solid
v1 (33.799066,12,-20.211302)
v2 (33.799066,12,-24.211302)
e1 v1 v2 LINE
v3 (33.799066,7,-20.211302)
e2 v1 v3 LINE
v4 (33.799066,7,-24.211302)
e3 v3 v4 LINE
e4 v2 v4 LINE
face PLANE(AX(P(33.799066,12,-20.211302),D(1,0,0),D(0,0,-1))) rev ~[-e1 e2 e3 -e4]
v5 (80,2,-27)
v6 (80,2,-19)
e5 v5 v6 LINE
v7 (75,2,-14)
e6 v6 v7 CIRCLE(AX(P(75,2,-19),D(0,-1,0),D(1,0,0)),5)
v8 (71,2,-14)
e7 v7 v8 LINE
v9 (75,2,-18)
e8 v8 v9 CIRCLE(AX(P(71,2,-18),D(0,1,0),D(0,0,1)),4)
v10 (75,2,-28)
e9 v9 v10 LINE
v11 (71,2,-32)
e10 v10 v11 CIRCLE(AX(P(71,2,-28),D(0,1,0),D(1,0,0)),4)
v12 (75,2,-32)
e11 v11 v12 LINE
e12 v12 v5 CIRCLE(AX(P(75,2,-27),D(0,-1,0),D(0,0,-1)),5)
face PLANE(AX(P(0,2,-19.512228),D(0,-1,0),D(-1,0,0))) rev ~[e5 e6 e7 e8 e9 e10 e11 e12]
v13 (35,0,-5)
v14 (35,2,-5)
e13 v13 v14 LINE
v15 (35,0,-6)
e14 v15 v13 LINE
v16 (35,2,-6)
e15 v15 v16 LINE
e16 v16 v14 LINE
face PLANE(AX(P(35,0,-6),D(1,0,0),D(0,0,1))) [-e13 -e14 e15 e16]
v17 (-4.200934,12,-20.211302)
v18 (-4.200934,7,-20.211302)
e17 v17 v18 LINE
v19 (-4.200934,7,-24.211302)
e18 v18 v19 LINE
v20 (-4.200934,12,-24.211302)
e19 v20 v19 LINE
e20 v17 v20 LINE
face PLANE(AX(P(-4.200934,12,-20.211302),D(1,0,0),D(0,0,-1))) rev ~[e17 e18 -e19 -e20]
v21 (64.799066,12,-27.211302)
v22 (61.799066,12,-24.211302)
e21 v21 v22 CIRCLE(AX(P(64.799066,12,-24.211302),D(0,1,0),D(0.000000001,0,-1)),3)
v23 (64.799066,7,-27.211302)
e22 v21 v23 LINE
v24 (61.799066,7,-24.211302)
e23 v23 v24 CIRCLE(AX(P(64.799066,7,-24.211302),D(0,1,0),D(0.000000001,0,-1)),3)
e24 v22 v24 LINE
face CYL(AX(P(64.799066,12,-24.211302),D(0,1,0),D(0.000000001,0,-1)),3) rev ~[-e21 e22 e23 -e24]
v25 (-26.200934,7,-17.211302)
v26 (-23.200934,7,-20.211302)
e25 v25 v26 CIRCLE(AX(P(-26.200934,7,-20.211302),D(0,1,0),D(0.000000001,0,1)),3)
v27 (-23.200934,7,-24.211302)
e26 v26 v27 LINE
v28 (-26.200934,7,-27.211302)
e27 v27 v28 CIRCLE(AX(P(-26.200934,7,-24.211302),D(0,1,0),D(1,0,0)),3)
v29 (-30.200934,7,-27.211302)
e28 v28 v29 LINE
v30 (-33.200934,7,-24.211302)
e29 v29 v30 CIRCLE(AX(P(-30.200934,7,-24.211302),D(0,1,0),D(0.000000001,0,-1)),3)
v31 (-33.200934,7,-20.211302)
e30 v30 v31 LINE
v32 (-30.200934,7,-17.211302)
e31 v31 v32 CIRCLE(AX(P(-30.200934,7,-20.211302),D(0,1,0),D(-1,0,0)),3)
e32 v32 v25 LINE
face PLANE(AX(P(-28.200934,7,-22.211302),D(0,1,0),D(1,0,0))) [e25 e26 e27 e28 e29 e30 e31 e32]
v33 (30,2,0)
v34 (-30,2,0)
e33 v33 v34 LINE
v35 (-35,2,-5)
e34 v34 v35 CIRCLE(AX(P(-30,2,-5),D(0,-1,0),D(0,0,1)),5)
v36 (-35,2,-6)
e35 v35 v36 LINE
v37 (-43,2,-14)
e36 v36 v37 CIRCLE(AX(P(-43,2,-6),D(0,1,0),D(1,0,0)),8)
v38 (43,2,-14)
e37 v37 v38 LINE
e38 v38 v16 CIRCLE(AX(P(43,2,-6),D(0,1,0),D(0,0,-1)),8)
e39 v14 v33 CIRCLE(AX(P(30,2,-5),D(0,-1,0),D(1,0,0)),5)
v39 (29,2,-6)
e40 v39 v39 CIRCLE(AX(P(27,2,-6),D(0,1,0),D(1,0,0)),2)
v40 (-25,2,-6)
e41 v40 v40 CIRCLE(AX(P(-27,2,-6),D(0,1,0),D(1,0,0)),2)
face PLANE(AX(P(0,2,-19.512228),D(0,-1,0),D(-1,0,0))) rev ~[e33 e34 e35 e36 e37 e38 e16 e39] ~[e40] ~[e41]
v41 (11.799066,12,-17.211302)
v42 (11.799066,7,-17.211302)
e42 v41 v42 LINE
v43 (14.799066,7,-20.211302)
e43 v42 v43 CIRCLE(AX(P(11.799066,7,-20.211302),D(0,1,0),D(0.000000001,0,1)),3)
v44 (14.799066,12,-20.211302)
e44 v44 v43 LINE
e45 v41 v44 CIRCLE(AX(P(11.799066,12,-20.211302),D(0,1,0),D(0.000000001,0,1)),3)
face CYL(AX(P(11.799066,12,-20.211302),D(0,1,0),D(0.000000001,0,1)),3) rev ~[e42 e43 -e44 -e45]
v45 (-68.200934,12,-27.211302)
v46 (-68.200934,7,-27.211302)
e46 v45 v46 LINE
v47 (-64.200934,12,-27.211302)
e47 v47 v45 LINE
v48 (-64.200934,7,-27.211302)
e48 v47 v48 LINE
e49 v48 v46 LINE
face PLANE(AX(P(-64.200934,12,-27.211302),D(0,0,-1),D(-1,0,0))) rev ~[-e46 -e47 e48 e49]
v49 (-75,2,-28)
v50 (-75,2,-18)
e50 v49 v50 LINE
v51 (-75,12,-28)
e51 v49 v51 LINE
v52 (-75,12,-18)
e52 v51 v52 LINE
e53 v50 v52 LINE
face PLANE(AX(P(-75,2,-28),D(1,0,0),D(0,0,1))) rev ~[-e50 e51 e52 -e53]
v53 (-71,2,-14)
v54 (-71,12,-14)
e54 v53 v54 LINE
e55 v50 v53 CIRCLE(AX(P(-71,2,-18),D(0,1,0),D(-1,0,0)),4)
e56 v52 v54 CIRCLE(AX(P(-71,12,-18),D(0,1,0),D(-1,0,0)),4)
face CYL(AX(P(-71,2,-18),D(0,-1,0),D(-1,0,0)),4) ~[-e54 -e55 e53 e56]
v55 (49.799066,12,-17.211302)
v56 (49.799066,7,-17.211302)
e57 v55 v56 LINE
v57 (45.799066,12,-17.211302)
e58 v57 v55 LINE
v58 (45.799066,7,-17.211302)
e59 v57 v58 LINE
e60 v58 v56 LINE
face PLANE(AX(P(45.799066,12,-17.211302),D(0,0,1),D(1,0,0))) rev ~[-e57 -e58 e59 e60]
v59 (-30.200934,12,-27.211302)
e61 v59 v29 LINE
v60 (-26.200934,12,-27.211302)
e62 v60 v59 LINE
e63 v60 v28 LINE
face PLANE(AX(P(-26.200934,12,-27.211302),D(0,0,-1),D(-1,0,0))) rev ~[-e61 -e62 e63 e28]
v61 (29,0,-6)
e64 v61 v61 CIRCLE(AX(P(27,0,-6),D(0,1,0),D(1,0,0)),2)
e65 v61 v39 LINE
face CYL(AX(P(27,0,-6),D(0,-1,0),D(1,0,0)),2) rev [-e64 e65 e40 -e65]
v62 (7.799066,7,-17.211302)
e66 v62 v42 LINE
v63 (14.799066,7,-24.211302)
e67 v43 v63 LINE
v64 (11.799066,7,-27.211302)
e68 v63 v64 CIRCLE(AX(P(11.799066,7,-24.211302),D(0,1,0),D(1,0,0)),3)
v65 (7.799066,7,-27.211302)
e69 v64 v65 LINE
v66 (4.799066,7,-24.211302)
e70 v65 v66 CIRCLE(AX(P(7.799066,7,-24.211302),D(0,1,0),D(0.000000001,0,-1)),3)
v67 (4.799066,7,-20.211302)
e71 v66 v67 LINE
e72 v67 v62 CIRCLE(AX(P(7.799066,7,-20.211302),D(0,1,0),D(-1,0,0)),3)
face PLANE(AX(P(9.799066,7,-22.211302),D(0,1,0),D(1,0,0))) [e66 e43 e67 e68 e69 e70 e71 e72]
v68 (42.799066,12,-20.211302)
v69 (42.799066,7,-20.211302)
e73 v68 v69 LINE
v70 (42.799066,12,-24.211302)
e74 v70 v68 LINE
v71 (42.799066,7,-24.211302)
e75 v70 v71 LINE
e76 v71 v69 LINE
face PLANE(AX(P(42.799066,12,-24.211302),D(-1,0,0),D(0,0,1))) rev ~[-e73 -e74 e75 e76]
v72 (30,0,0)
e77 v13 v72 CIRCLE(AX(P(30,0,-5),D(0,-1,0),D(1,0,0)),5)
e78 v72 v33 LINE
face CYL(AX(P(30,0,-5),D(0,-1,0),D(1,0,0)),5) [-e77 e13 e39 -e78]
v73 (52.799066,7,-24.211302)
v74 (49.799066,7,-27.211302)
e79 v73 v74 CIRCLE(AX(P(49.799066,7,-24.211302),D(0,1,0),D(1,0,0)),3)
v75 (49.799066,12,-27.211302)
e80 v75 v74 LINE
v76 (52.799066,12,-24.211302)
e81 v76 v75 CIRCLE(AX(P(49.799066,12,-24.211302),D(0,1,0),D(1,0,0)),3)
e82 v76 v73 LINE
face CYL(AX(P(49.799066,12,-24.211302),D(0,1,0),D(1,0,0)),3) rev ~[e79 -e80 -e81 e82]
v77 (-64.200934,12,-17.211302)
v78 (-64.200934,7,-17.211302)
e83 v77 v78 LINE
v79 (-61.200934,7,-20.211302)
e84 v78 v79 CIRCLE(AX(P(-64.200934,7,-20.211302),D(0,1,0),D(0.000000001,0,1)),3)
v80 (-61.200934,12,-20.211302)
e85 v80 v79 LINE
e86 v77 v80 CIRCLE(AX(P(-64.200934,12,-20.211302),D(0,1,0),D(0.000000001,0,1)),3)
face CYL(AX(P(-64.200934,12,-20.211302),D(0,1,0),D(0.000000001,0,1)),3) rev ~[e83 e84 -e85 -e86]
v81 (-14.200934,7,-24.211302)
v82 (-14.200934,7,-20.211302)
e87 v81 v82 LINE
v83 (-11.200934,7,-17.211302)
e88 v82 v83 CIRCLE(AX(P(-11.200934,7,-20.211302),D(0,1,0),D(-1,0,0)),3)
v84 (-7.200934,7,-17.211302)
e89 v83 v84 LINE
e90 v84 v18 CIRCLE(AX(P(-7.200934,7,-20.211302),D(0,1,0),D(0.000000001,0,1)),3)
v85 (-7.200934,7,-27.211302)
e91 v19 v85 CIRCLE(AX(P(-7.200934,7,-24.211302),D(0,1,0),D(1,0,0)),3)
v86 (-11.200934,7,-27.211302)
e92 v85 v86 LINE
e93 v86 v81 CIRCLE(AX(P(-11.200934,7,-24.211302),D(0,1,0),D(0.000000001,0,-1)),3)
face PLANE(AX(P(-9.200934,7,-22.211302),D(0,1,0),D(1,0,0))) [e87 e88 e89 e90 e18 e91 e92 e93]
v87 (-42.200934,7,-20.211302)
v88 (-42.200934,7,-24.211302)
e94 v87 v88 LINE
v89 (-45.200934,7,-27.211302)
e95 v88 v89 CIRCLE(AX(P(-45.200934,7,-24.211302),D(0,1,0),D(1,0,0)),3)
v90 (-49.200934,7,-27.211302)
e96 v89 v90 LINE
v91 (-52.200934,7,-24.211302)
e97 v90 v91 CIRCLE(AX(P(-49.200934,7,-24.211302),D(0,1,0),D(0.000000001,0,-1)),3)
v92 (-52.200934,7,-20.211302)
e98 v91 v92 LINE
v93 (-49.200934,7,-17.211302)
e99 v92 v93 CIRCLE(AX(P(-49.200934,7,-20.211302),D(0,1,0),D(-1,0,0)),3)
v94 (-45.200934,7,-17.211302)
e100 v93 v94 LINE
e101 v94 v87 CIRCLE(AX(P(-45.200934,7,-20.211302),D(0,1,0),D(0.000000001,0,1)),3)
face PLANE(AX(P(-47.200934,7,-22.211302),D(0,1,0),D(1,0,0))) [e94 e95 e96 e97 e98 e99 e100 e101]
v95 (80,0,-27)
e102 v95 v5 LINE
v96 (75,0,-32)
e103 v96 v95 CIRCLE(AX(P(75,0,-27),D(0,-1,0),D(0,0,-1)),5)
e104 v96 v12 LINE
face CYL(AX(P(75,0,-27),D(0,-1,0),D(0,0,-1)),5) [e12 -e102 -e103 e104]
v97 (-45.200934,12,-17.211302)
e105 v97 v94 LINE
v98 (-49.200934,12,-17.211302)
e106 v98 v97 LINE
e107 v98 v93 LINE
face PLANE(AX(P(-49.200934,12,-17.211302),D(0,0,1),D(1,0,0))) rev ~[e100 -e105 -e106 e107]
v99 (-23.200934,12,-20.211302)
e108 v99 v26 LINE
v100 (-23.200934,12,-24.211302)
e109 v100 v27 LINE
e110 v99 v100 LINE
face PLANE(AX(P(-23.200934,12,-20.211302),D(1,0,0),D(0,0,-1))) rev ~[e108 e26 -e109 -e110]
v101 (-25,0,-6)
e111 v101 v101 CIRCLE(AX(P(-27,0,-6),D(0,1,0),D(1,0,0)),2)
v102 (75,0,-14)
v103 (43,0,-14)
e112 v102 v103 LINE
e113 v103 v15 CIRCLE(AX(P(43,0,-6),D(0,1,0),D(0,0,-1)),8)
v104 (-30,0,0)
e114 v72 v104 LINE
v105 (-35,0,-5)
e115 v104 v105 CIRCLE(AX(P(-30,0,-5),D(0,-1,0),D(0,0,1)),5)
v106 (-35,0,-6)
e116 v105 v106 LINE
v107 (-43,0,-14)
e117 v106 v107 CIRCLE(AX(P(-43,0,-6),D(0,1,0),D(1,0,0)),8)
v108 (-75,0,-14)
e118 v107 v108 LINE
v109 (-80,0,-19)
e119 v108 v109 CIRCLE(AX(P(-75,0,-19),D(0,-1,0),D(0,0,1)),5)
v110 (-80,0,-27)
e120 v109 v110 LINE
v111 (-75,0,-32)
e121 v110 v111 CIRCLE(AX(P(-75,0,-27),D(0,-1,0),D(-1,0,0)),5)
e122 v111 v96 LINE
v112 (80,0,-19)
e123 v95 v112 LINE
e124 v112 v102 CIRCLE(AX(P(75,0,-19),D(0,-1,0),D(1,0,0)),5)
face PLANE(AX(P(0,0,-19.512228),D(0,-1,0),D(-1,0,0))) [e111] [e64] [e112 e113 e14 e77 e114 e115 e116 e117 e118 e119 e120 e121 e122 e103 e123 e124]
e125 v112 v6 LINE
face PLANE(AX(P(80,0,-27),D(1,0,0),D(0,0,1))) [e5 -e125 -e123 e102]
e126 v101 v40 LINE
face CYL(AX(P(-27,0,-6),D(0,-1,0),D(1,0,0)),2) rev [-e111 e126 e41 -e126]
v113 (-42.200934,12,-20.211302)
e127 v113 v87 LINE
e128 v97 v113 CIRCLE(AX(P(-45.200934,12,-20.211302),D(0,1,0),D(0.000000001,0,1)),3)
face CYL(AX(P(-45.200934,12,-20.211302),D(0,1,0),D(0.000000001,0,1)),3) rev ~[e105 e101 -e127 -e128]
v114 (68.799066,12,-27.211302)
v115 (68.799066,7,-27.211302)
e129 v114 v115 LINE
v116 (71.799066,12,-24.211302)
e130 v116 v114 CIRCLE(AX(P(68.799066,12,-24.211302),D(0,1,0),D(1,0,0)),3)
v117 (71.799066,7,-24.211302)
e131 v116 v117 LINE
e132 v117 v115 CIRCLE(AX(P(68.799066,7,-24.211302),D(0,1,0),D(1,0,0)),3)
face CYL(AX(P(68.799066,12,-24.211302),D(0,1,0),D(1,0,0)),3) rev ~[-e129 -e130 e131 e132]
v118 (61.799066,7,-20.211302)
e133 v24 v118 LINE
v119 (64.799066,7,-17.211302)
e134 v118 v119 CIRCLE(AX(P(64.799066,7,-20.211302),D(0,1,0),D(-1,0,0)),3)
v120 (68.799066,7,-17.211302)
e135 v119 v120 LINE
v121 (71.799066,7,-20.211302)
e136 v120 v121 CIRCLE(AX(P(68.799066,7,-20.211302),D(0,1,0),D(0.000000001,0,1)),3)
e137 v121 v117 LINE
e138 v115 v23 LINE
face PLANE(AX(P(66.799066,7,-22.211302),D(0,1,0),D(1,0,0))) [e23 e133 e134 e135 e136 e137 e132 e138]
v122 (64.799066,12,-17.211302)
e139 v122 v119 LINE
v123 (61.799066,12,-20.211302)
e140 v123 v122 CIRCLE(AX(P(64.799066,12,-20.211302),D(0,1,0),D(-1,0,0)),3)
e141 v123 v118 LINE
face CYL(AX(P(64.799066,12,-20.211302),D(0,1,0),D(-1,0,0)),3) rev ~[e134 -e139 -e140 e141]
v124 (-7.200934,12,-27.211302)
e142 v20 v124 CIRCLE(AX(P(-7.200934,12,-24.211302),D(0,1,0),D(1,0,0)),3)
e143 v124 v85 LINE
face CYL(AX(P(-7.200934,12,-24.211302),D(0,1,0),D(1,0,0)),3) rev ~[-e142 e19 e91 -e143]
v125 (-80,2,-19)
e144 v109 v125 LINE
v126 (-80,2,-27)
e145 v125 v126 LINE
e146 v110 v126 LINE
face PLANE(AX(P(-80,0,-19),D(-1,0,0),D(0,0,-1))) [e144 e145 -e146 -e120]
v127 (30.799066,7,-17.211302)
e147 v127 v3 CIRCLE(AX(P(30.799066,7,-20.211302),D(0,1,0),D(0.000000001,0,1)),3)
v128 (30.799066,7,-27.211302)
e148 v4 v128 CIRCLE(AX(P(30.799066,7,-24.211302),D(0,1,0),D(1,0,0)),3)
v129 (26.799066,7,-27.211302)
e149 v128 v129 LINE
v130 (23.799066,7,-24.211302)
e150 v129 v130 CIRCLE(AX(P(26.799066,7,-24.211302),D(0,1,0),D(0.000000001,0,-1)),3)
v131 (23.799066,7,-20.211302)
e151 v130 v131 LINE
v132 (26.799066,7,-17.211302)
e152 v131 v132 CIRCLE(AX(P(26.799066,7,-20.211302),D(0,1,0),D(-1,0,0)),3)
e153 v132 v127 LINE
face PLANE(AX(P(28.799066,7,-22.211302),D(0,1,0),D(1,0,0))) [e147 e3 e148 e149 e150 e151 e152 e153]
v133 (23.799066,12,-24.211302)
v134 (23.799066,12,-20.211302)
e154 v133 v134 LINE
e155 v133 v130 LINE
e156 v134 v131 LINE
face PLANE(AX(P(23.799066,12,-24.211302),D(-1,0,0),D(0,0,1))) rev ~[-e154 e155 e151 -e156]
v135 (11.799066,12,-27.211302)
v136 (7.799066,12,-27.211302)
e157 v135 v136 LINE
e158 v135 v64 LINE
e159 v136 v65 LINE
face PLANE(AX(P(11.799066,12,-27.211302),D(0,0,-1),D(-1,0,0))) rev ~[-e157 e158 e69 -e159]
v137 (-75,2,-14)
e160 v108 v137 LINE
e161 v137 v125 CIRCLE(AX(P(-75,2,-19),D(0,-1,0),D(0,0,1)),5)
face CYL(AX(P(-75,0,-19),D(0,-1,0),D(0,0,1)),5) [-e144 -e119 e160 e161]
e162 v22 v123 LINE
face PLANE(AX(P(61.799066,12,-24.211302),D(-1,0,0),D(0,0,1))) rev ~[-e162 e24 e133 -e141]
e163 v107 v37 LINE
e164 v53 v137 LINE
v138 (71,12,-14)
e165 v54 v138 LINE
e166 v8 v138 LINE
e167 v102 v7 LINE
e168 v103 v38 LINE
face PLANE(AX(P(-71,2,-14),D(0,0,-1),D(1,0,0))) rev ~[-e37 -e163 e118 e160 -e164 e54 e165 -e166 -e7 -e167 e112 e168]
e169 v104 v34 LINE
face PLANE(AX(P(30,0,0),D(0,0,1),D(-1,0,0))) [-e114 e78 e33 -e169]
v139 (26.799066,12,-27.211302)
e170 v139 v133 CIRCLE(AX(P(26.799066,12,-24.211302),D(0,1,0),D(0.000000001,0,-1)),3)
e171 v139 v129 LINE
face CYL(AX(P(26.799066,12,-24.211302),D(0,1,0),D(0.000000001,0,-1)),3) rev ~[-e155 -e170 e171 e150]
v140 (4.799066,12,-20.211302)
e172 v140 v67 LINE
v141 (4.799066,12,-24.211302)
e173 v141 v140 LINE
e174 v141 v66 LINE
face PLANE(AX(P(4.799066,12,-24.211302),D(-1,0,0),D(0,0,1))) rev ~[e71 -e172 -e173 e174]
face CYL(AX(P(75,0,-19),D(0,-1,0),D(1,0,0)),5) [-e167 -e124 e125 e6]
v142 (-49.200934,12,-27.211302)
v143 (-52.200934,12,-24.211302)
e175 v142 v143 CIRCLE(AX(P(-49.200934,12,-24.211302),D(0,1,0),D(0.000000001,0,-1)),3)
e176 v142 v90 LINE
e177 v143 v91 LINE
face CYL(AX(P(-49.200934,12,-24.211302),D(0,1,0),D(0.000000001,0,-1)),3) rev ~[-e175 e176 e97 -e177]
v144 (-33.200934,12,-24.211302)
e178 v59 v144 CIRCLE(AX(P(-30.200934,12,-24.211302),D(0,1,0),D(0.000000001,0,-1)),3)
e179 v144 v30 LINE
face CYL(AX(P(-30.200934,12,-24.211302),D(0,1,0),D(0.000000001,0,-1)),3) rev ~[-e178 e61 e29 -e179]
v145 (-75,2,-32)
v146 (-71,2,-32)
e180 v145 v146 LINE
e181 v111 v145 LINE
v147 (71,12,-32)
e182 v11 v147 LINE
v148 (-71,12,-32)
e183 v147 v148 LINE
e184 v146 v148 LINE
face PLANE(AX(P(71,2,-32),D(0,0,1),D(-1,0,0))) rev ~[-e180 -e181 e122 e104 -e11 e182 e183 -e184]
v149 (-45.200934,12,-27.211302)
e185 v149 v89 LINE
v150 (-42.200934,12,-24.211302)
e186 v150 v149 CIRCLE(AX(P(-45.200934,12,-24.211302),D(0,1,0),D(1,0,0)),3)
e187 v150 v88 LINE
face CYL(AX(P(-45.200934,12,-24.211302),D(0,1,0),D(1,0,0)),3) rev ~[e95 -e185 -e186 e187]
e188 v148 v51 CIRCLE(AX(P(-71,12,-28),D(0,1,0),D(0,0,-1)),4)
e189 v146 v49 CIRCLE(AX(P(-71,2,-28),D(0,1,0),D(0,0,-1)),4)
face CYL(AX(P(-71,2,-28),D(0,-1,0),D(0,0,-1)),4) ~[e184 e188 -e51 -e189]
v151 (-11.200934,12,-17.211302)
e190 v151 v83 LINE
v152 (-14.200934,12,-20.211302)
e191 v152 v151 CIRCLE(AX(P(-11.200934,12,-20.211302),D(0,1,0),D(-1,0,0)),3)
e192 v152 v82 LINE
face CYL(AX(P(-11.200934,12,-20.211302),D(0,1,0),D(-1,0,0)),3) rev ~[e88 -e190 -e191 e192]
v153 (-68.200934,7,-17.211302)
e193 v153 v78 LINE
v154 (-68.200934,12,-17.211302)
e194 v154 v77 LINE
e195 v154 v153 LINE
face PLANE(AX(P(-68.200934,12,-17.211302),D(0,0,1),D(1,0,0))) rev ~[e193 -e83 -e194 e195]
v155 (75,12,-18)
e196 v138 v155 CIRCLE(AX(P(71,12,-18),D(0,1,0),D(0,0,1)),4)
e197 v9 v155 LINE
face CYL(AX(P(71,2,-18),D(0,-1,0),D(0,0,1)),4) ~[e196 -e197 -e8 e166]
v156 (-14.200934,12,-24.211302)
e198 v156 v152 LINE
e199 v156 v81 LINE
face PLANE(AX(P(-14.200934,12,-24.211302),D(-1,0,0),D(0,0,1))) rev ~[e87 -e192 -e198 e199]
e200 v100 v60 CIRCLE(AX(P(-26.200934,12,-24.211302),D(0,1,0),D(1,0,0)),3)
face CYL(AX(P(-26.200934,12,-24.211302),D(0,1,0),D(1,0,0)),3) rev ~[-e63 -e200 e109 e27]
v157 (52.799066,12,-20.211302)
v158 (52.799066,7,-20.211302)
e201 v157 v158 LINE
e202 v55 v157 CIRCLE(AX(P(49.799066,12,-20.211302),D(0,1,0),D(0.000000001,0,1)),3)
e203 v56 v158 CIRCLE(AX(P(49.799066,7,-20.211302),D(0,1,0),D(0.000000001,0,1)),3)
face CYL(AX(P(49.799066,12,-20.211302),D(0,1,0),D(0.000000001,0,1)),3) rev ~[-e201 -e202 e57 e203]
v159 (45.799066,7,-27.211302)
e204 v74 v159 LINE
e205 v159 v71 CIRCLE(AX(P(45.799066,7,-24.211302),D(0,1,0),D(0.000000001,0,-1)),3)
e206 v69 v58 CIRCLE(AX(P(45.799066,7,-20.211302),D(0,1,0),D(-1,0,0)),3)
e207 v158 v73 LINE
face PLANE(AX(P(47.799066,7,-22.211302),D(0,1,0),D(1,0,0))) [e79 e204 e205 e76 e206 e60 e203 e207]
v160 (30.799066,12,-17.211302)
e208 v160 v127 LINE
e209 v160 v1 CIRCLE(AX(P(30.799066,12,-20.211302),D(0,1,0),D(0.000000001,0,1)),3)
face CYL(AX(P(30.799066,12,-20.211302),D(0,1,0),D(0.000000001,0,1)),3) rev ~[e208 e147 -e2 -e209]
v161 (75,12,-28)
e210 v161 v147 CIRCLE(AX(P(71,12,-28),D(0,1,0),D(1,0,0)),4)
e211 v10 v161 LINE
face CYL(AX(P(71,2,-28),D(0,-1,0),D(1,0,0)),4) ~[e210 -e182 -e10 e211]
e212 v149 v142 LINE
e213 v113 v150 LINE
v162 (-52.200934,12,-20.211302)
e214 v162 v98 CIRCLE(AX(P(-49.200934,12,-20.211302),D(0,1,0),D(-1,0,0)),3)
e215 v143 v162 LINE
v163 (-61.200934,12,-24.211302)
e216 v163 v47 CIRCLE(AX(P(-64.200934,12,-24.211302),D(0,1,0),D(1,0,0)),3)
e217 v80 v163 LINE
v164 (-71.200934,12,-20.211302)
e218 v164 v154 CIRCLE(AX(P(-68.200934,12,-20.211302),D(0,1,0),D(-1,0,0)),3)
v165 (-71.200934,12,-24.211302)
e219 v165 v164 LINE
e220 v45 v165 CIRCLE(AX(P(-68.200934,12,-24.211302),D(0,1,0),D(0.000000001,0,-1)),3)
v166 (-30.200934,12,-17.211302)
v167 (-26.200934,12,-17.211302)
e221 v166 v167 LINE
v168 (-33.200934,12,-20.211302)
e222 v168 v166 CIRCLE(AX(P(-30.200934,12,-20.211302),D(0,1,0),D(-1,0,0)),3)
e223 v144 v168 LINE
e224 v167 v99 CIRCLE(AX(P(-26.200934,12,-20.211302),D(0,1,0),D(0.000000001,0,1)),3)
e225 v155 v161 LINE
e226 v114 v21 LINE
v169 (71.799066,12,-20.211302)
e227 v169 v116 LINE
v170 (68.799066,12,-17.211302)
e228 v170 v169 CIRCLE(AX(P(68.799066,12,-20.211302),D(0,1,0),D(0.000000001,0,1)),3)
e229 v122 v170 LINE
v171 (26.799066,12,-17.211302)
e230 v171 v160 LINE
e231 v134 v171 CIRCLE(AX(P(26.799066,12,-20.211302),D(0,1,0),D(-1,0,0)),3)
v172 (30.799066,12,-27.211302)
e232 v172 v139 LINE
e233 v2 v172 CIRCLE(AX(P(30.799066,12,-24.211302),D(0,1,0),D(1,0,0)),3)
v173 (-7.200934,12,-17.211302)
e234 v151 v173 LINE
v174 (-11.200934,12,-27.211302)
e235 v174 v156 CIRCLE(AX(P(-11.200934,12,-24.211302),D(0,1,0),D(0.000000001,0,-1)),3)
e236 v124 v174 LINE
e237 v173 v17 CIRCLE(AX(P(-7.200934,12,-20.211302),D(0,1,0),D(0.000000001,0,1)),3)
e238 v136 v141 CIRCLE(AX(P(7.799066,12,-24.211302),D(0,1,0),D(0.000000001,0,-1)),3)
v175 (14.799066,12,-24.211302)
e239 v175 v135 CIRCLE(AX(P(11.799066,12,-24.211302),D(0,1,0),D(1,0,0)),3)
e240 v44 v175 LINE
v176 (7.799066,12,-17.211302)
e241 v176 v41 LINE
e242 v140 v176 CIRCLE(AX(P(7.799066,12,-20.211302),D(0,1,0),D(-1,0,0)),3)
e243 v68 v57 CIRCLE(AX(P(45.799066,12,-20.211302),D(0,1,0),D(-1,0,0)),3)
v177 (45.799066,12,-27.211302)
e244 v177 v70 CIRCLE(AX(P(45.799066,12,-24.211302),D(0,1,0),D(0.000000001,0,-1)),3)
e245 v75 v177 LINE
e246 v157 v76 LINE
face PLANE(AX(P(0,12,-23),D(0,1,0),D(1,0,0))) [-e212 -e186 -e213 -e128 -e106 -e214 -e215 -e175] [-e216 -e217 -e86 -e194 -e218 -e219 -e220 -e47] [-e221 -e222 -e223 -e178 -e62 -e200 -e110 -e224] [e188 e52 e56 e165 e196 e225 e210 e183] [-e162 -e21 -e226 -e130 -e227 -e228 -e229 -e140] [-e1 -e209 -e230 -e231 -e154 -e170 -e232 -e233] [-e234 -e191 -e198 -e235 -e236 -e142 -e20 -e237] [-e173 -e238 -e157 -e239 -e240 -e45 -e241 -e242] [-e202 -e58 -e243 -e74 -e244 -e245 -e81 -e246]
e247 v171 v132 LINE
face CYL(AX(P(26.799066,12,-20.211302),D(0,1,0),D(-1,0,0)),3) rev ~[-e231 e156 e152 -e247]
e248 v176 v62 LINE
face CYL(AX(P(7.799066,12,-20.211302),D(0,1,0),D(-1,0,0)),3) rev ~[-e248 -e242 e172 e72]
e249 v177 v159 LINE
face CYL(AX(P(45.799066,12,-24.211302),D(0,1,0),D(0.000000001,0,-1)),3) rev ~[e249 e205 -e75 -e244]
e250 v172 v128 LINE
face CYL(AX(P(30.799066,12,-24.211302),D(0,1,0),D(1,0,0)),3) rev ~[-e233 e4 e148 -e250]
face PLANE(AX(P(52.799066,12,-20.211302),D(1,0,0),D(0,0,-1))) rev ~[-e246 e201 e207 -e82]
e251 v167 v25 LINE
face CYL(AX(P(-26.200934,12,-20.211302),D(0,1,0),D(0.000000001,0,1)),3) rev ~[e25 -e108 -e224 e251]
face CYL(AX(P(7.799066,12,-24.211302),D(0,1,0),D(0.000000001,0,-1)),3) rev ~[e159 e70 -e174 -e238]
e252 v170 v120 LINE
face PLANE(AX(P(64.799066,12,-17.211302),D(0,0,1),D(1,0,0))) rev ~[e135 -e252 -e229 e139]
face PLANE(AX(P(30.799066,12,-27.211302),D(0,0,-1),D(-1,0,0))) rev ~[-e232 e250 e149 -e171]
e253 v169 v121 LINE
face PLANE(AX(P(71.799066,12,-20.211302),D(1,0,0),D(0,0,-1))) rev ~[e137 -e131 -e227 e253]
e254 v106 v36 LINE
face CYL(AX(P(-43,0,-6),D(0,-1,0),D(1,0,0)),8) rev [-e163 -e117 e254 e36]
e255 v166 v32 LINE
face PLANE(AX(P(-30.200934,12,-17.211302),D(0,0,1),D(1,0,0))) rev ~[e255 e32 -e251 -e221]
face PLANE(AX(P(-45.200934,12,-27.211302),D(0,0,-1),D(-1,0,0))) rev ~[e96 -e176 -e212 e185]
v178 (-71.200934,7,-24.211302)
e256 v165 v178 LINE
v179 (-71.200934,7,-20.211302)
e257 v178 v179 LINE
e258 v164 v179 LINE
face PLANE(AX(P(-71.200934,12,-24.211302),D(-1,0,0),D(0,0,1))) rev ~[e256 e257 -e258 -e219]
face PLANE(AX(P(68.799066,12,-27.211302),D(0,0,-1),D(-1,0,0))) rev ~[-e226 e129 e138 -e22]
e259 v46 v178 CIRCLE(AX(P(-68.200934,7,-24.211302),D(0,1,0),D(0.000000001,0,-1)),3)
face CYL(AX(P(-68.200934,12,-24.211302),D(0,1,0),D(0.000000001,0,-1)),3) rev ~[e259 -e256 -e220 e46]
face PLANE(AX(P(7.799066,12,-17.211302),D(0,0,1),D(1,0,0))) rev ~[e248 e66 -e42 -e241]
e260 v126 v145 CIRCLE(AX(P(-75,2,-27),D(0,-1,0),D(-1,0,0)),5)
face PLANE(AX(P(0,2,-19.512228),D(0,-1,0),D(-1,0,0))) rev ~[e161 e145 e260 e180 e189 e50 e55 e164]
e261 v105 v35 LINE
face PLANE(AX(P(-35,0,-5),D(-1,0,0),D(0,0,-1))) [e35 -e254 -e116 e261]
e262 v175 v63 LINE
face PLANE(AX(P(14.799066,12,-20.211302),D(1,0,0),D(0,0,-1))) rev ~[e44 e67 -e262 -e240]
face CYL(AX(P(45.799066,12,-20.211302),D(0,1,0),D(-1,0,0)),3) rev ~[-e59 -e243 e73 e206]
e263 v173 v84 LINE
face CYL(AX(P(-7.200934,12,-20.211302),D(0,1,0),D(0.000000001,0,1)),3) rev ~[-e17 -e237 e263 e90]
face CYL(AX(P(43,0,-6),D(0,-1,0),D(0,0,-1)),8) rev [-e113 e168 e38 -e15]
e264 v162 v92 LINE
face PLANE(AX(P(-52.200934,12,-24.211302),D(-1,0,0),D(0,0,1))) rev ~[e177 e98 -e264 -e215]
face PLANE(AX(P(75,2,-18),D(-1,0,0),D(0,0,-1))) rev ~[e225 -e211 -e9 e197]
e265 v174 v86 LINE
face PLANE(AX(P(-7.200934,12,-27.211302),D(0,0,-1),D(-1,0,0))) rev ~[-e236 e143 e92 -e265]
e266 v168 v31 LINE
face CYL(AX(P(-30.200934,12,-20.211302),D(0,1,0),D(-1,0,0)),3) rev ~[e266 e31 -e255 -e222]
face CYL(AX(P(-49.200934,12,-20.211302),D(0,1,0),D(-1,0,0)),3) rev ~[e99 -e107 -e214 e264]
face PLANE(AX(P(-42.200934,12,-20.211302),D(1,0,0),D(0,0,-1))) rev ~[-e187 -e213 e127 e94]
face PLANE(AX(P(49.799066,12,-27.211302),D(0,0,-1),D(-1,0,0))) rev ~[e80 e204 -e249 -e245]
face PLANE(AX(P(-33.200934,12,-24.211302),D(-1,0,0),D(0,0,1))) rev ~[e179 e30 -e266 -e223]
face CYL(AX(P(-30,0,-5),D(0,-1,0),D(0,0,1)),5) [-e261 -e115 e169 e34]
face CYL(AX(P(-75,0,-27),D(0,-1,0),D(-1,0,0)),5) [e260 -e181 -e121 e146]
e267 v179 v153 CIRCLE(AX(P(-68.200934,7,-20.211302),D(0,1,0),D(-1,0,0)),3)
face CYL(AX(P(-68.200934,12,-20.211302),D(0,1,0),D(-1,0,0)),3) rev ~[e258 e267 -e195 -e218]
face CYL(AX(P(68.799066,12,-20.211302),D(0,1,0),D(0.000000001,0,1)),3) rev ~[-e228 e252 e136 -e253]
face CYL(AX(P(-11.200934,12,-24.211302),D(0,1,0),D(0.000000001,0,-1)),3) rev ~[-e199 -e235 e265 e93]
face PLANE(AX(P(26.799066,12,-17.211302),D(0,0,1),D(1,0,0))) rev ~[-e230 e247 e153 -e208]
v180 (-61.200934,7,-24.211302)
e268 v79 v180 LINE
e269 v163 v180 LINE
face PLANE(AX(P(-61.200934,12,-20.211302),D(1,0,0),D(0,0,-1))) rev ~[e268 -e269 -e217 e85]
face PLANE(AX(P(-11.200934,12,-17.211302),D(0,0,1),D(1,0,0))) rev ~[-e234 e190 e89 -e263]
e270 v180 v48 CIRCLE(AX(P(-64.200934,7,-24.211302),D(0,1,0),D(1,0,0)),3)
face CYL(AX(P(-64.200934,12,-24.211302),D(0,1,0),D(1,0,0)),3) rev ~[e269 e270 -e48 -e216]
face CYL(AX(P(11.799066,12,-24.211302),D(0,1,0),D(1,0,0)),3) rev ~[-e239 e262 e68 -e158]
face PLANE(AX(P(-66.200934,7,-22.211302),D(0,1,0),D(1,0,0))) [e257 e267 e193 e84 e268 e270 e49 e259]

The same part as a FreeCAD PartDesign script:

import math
import FreeCAD as App
import Part
import Sketcher
from FreeCAD import Vector
Q = App.Units.Quantity

doc = App.newDocument("Part")
params = doc.addObject("Spreadsheet::Sheet", "Params")
for row, (alias, value) in enumerate([
    ("sketch1_diameter", "4 mm"),
    ("sketch1_radius", "5 mm"),
    ("sketch1_radius2", "8 mm"),
    ("sketch1_width", "150 mm"),
    ("sketch1_width2", "32 mm"),
    ("pad1_length", "2 mm"),
    ("sketch2_radius", "4 mm"),
    ("sketch2_width", "142 mm"),
    ("sketch2_height", "10 mm"),
    ("pad2_length", "10 mm"),
    ("sketch3_radius", "3 mm"),
    ("sketch3_width", "4 mm"),
    ("pocket1_length", "5 mm"),
], start=1):
    params.set(f"A{row}", alias)
    params.set(f"B{row}", "=" + value)
    params.setAlias(f"B{row}", alias)

body = doc.addObject("PartDesign::Body", "Body")

sketch1 = body.newObject("Sketcher::SketchObject", "Sketch")
sketch1.AttachmentSupport = (doc.getObject("XZ_Plane"), [""])
sketch1.MapMode = "FlatFace"
sketch1.addGeometry([
    Part.LineSegment(Vector(75, -32, 0), Vector(-75, -32, 0)),
    Part.ArcOfCircle(Part.Circle(Vector(-75, -27, 0), Vector(0, 0, 1), 5), math.radians(180), math.radians(270)),
    Part.LineSegment(Vector(-80, -27, 0), Vector(-80, -19, 0)),
    Part.ArcOfCircle(Part.Circle(Vector(-75, -19, 0), Vector(0, 0, 1), 5), math.radians(90), math.radians(180)),
    Part.LineSegment(Vector(-75, -14, 0), Vector(-43, -14, 0)),
    Part.ArcOfCircle(Part.Circle(Vector(-43, -6, 0), Vector(0, 0, 1), 8), math.radians(-90), math.radians(0)),
    Part.LineSegment(Vector(-35, -6, 0), Vector(-35, -5, 0)),
    Part.ArcOfCircle(Part.Circle(Vector(-30, -5, 0), Vector(0, 0, 1), 5), math.radians(90), math.radians(180)),
    Part.LineSegment(Vector(-30, 0, 0), Vector(30, 0, 0)),
    Part.ArcOfCircle(Part.Circle(Vector(30, -5, 0), Vector(0, 0, 1), 5), math.radians(0), math.radians(90)),
    Part.LineSegment(Vector(35, -5, 0), Vector(35, -6, 0)),
    Part.ArcOfCircle(Part.Circle(Vector(43, -6, 0), Vector(0, 0, 1), 8), math.radians(-180), math.radians(-90)),
    Part.LineSegment(Vector(43, -14, 0), Vector(75, -14, 0)),
    Part.ArcOfCircle(Part.Circle(Vector(75, -19, 0), Vector(0, 0, 1), 5), math.radians(0), math.radians(90)),
    Part.LineSegment(Vector(80, -19, 0), Vector(80, -27, 0)),
    Part.ArcOfCircle(Part.Circle(Vector(75, -27, 0), Vector(0, 0, 1), 5), math.radians(-90), math.radians(0)),
    Part.Circle(Vector(27, -6, 0), Vector(0, 0, 1), 2),
    Part.Circle(Vector(-27, -6, 0), Vector(0, 0, 1), 2),
], False)
sketch1.addConstraint([
    Sketcher.Constraint("Tangent", 0, 2, 1, 2),
    Sketcher.Constraint("Tangent", 1, 1, 2, 1),
    Sketcher.Constraint("Tangent", 2, 2, 3, 2),
    Sketcher.Constraint("Tangent", 3, 1, 4, 1),
    Sketcher.Constraint("Tangent", 4, 2, 5, 1),
    Sketcher.Constraint("Tangent", 5, 2, 6, 1),
    Sketcher.Constraint("Tangent", 6, 2, 7, 2),
    Sketcher.Constraint("Tangent", 7, 1, 8, 1),
    Sketcher.Constraint("Tangent", 8, 2, 9, 2),
    Sketcher.Constraint("Tangent", 9, 1, 10, 1),
    Sketcher.Constraint("Tangent", 10, 2, 11, 1),
    Sketcher.Constraint("Tangent", 11, 2, 12, 1),
    Sketcher.Constraint("Tangent", 12, 2, 13, 2),
    Sketcher.Constraint("Tangent", 13, 1, 14, 1),
    Sketcher.Constraint("Tangent", 14, 2, 15, 2),
    Sketcher.Constraint("Tangent", 15, 1, 0, 1),
    Sketcher.Constraint("Horizontal", 0),
    Sketcher.Constraint("Vertical", 2),
    Sketcher.Constraint("Horizontal", 4),
    Sketcher.Constraint("Vertical", 6),
    Sketcher.Constraint("Horizontal", 8),
    Sketcher.Constraint("Vertical", 10),
    Sketcher.Constraint("Horizontal", 12),
    Sketcher.Constraint("Vertical", 14),
    Sketcher.Constraint("Equal", 1, 3),
    Sketcher.Constraint("Equal", 3, 7),
    Sketcher.Constraint("Equal", 7, 9),
    Sketcher.Constraint("Equal", 5, 11),
    Sketcher.Constraint("Equal", 9, 13),
    Sketcher.Constraint("Equal", 13, 15),
    Sketcher.Constraint("Equal", 16, 17),
    Sketcher.Constraint("Symmetric", 7, 1, 8, 2, -1, 1),
    Sketcher.Constraint("Symmetric", 3, 3, 13, 3, -2),
    Sketcher.Constraint("Symmetric", 16, 3, 17, 3, -2),
    Sketcher.Constraint("Horizontal", 11, 3, 16, 3),
    Sketcher.Constraint("Diameter", 16, Q("4 mm")),
    Sketcher.Constraint("Radius", 1, Q("5 mm")),
    Sketcher.Constraint("Radius", 5, Q("8 mm")),
    Sketcher.Constraint("DistanceX", 0, 2, 0, 1, Q("150 mm")),
    Sketcher.Constraint("DistanceX", 4, 1, 4, 2, Q("32 mm")),
    Sketcher.Constraint("DistanceY", 2, 1, 2, 2, Q("8 mm")),
    Sketcher.Constraint("DistanceY", 6, 1, 6, 2, Q("1 mm")),
    Sketcher.Constraint("DistanceX", -1, 1, 16, 3, Q("27 mm")),
])
sketch1.setExpression("Constraints[35]", "Params.sketch1_diameter")
sketch1.setExpression("Constraints[36]", "Params.sketch1_radius")
sketch1.setExpression("Constraints[37]", "Params.sketch1_radius2")
sketch1.setExpression("Constraints[38]", "Params.sketch1_width")
sketch1.setExpression("Constraints[39]", "Params.sketch1_width2")
pad1 = body.newObject("PartDesign::Pad", "Pad")
pad1.Profile = sketch1
pad1.setExpression("Length", "Params.pad1_length")
pad1.Reversed = True

sketch2 = body.newObject("Sketcher::SketchObject", "Sketch001")
sketch2.AttachmentSupport = (doc.getObject("XZ_Plane"), [""])
sketch2.MapMode = "FlatFace"
sketch2.AttachmentOffset = App.Placement(Vector(0, 0, -2), App.Rotation())
sketch2.addGeometry([
    Part.LineSegment(Vector(-71, -14, 0), Vector(71, -14, 0)),
    Part.ArcOfCircle(Part.Circle(Vector(71, -18, 0), Vector(0, 0, 1), 4), math.radians(0), math.radians(90)),
    Part.LineSegment(Vector(75, -18, 0), Vector(75, -28, 0)),
    Part.ArcOfCircle(Part.Circle(Vector(71, -28, 0), Vector(0, 0, 1), 4), math.radians(-90), math.radians(0)),
    Part.LineSegment(Vector(71, -32, 0), Vector(-71, -32, 0)),
    Part.ArcOfCircle(Part.Circle(Vector(-71, -28, 0), Vector(0, 0, 1), 4), math.radians(180), math.radians(270)),
    Part.LineSegment(Vector(-75, -28, 0), Vector(-75, -18, 0)),
    Part.ArcOfCircle(Part.Circle(Vector(-71, -18, 0), Vector(0, 0, 1), 4), math.radians(90), math.radians(180)),
], False)
sketch2.addConstraint([
    Sketcher.Constraint("Tangent", 0, 2, 1, 2),
    Sketcher.Constraint("Tangent", 1, 1, 2, 1),
    Sketcher.Constraint("Tangent", 2, 2, 3, 2),
    Sketcher.Constraint("Tangent", 3, 1, 4, 1),
    Sketcher.Constraint("Tangent", 4, 2, 5, 2),
    Sketcher.Constraint("Tangent", 5, 1, 6, 1),
    Sketcher.Constraint("Tangent", 6, 2, 7, 2),
    Sketcher.Constraint("Tangent", 7, 1, 0, 1),
    Sketcher.Constraint("Horizontal", 0),
    Sketcher.Constraint("Vertical", 2),
    Sketcher.Constraint("Horizontal", 4),
    Sketcher.Constraint("Vertical", 6),
    Sketcher.Constraint("Equal", 1, 3),
    Sketcher.Constraint("Equal", 3, 5),
    Sketcher.Constraint("Equal", 5, 7),
    Sketcher.Constraint("Radius", 1, Q("4 mm")),
    Sketcher.Constraint("DistanceX", 0, 1, 0, 2, Q("142 mm")),
    Sketcher.Constraint("DistanceY", 2, 2, 2, 1, Q("10 mm")),
    Sketcher.Constraint("DistanceX", -1, 1, 1, 3, Q("71 mm")),
    Sketcher.Constraint("DistanceY", 1, 3, -1, 1, Q("18 mm")),
])
sketch2.setExpression("Constraints[15]", "Params.sketch2_radius")
sketch2.setExpression("Constraints[16]", "Params.sketch2_width")
sketch2.setExpression("Constraints[17]", "Params.sketch2_height")
pad2 = body.newObject("PartDesign::Pad", "Pad001")
pad2.Profile = sketch2
pad2.setExpression("Length", "Params.pad2_length")
pad2.Reversed = True

sketch3 = body.newObject("Sketcher::SketchObject", "Sketch002")
sketch3.AttachmentSupport = (doc.getObject("XZ_Plane"), [""])
sketch3.MapMode = "FlatFace"
sketch3.AttachmentOffset = App.Placement(Vector(0, 0, -12), App.Rotation())
sketch3.addGeometry([
    Part.LineSegment(Vector(-49.2, -17.2, 0), Vector(-45.2, -17.2, 0)),
    Part.ArcOfCircle(Part.Circle(Vector(-45.2, -20.2, 0), Vector(0, 0, 1), 3), math.radians(0), math.radians(90)),
    Part.LineSegment(Vector(-42.2, -20.2, 0), Vector(-42.2, -24.2, 0)),
    Part.ArcOfCircle(Part.Circle(Vector(-45.2, -24.2, 0), Vector(0, 0, 1), 3), math.radians(-90), math.radians(0)),
    Part.LineSegment(Vector(-45.2, -27.2, 0), Vector(-49.2, -27.2, 0)),
    Part.ArcOfCircle(Part.Circle(Vector(-49.2, -24.2, 0), Vector(0, 0, 1), 3), math.radians(180), math.radians(270)),
    Part.LineSegment(Vector(-52.2, -24.2, 0), Vector(-52.2, -20.2, 0)),
    Part.ArcOfCircle(Part.Circle(Vector(-49.2, -20.2, 0), Vector(0, 0, 1), 3), math.radians(90), math.radians(180)),
    Part.LineSegment(Vector(-68.2, -17.2, 0), Vector(-64.2, -17.2, 0)),
    Part.ArcOfCircle(Part.Circle(Vector(-64.2, -20.2, 0), Vector(0, 0, 1), 3), math.radians(0), math.radians(90)),
    Part.LineSegment(Vector(-61.2, -20.2, 0), Vector(-61.2, -24.2, 0)),
    Part.ArcOfCircle(Part.Circle(Vector(-64.2, -24.2, 0), Vector(0, 0, 1), 3), math.radians(-90), math.radians(0)),
    Part.LineSegment(Vector(-64.2, -27.2, 0), Vector(-68.2, -27.2, 0)),
    Part.ArcOfCircle(Part.Circle(Vector(-68.2, -24.2, 0), Vector(0, 0, 1), 3), math.radians(180), math.radians(270)),
    Part.LineSegment(Vector(-71.2, -24.2, 0), Vector(-71.2, -20.2, 0)),
    Part.ArcOfCircle(Part.Circle(Vector(-68.2, -20.2, 0), Vector(0, 0, 1), 3), math.radians(90), math.radians(180)),
    Part.LineSegment(Vector(-30.2, -17.2, 0), Vector(-26.2, -17.2, 0)),
    Part.ArcOfCircle(Part.Circle(Vector(-26.2, -20.2, 0), Vector(0, 0, 1), 3), math.radians(0), math.radians(90)),
    Part.LineSegment(Vector(-23.2, -20.2, 0), Vector(-23.2, -24.2, 0)),
    Part.ArcOfCircle(Part.Circle(Vector(-26.2, -24.2, 0), Vector(0, 0, 1), 3), math.radians(-90), math.radians(0)),
    Part.LineSegment(Vector(-26.2, -27.2, 0), Vector(-30.2, -27.2, 0)),
    Part.ArcOfCircle(Part.Circle(Vector(-30.2, -24.2, 0), Vector(0, 0, 1), 3), math.radians(180), math.radians(270)),
    Part.LineSegment(Vector(-33.2, -24.2, 0), Vector(-33.2, -20.2, 0)),
    Part.ArcOfCircle(Part.Circle(Vector(-30.2, -20.2, 0), Vector(0, 0, 1), 3), math.radians(90), math.radians(180)),
    Part.LineSegment(Vector(-11.2, -17.2, 0), Vector(-7.2, -17.2, 0)),
    Part.ArcOfCircle(Part.Circle(Vector(-7.2, -20.2, 0), Vector(0, 0, 1), 3), math.radians(0), math.radians(90)),
    Part.LineSegment(Vector(-4.2, -20.2, 0), Vector(-4.2, -24.2, 0)),
    Part.ArcOfCircle(Part.Circle(Vector(-7.2, -24.2, 0), Vector(0, 0, 1), 3), math.radians(-90), math.radians(0)),
    Part.LineSegment(Vector(-7.2, -27.2, 0), Vector(-11.2, -27.2, 0)),
    Part.ArcOfCircle(Part.Circle(Vector(-11.2, -24.2, 0), Vector(0, 0, 1), 3), math.radians(180), math.radians(270)),
    Part.LineSegment(Vector(-14.2, -24.2, 0), Vector(-14.2, -20.2, 0)),
    Part.ArcOfCircle(Part.Circle(Vector(-11.2, -20.2, 0), Vector(0, 0, 1), 3), math.radians(90), math.radians(180)),
    Part.LineSegment(Vector(7.8, -17.2, 0), Vector(11.8, -17.2, 0)),
    Part.ArcOfCircle(Part.Circle(Vector(11.8, -20.2, 0), Vector(0, 0, 1), 3), math.radians(0), math.radians(90)),
    Part.LineSegment(Vector(14.8, -20.2, 0), Vector(14.8, -24.2, 0)),
    Part.ArcOfCircle(Part.Circle(Vector(11.8, -24.2, 0), Vector(0, 0, 1), 3), math.radians(-90), math.radians(0)),
    Part.LineSegment(Vector(11.8, -27.2, 0), Vector(7.8, -27.2, 0)),
    Part.ArcOfCircle(Part.Circle(Vector(7.8, -24.2, 0), Vector(0, 0, 1), 3), math.radians(180), math.radians(270)),
    Part.LineSegment(Vector(4.8, -24.2, 0), Vector(4.8, -20.2, 0)),
    Part.ArcOfCircle(Part.Circle(Vector(7.8, -20.2, 0), Vector(0, 0, 1), 3), math.radians(90), math.radians(180)),
    Part.LineSegment(Vector(26.8, -17.2, 0), Vector(30.8, -17.2, 0)),
    Part.ArcOfCircle(Part.Circle(Vector(30.8, -20.2, 0), Vector(0, 0, 1), 3), math.radians(0), math.radians(90)),
    Part.LineSegment(Vector(33.8, -20.2, 0), Vector(33.8, -24.2, 0)),
    Part.ArcOfCircle(Part.Circle(Vector(30.8, -24.2, 0), Vector(0, 0, 1), 3), math.radians(-90), math.radians(0)),
    Part.LineSegment(Vector(30.8, -27.2, 0), Vector(26.8, -27.2, 0)),
    Part.ArcOfCircle(Part.Circle(Vector(26.8, -24.2, 0), Vector(0, 0, 1), 3), math.radians(180), math.radians(270)),
    Part.LineSegment(Vector(23.8, -24.2, 0), Vector(23.8, -20.2, 0)),
    Part.ArcOfCircle(Part.Circle(Vector(26.8, -20.2, 0), Vector(0, 0, 1), 3), math.radians(90), math.radians(180)),
    Part.LineSegment(Vector(45.8, -17.2, 0), Vector(49.8, -17.2, 0)),
    Part.ArcOfCircle(Part.Circle(Vector(49.8, -20.2, 0), Vector(0, 0, 1), 3), math.radians(0), math.radians(90)),
    Part.LineSegment(Vector(52.8, -20.2, 0), Vector(52.8, -24.2, 0)),
    Part.ArcOfCircle(Part.Circle(Vector(49.8, -24.2, 0), Vector(0, 0, 1), 3), math.radians(-90), math.radians(0)),
    Part.LineSegment(Vector(49.8, -27.2, 0), Vector(45.8, -27.2, 0)),
    Part.ArcOfCircle(Part.Circle(Vector(45.8, -24.2, 0), Vector(0, 0, 1), 3), math.radians(180), math.radians(270)),
    Part.LineSegment(Vector(42.8, -24.2, 0), Vector(42.8, -20.2, 0)),
    Part.ArcOfCircle(Part.Circle(Vector(45.8, -20.2, 0), Vector(0, 0, 1), 3), math.radians(90), math.radians(180)),
    Part.LineSegment(Vector(64.8, -17.2, 0), Vector(68.8, -17.2, 0)),
    Part.ArcOfCircle(Part.Circle(Vector(68.8, -20.2, 0), Vector(0, 0, 1), 3), math.radians(0), math.radians(90)),
    Part.LineSegment(Vector(71.8, -20.2, 0), Vector(71.8, -24.2, 0)),
    Part.ArcOfCircle(Part.Circle(Vector(68.8, -24.2, 0), Vector(0, 0, 1), 3), math.radians(-90), math.radians(0)),
    Part.LineSegment(Vector(68.8, -27.2, 0), Vector(64.8, -27.2, 0)),
    Part.ArcOfCircle(Part.Circle(Vector(64.8, -24.2, 0), Vector(0, 0, 1), 3), math.radians(180), math.radians(270)),
    Part.LineSegment(Vector(61.8, -24.2, 0), Vector(61.8, -20.2, 0)),
    Part.ArcOfCircle(Part.Circle(Vector(64.8, -20.2, 0), Vector(0, 0, 1), 3), math.radians(90), math.radians(180)),
], False)
sketch3.addConstraint([
    Sketcher.Constraint("Tangent", 0, 2, 1, 2),
    Sketcher.Constraint("Tangent", 1, 1, 2, 1),
    Sketcher.Constraint("Tangent", 2, 2, 3, 2),
    Sketcher.Constraint("Tangent", 3, 1, 4, 1),
    Sketcher.Constraint("Tangent", 4, 2, 5, 2),
    Sketcher.Constraint("Tangent", 5, 1, 6, 1),
    Sketcher.Constraint("Tangent", 6, 2, 7, 2),
    Sketcher.Constraint("Tangent", 7, 1, 0, 1),
    Sketcher.Constraint("Tangent", 8, 2, 9, 2),
    Sketcher.Constraint("Tangent", 9, 1, 10, 1),
    Sketcher.Constraint("Tangent", 10, 2, 11, 2),
    Sketcher.Constraint("Tangent", 11, 1, 12, 1),
    Sketcher.Constraint("Tangent", 12, 2, 13, 2),
    Sketcher.Constraint("Tangent", 13, 1, 14, 1),
    Sketcher.Constraint("Tangent", 14, 2, 15, 2),
    Sketcher.Constraint("Tangent", 15, 1, 8, 1),
    Sketcher.Constraint("Tangent", 16, 2, 17, 2),
    Sketcher.Constraint("Tangent", 17, 1, 18, 1),
    Sketcher.Constraint("Tangent", 18, 2, 19, 2),
    Sketcher.Constraint("Tangent", 19, 1, 20, 1),
    Sketcher.Constraint("Tangent", 20, 2, 21, 2),
    Sketcher.Constraint("Tangent", 21, 1, 22, 1),
    Sketcher.Constraint("Tangent", 22, 2, 23, 2),
    Sketcher.Constraint("Tangent", 23, 1, 16, 1),
    Sketcher.Constraint("Tangent", 24, 2, 25, 2),
    Sketcher.Constraint("Tangent", 25, 1, 26, 1),
    Sketcher.Constraint("Tangent", 26, 2, 27, 2),
    Sketcher.Constraint("Tangent", 27, 1, 28, 1),
    Sketcher.Constraint("Tangent", 28, 2, 29, 2),
    Sketcher.Constraint("Tangent", 29, 1, 30, 1),
    Sketcher.Constraint("Tangent", 30, 2, 31, 2),
    Sketcher.Constraint("Tangent", 31, 1, 24, 1),
    Sketcher.Constraint("Tangent", 32, 2, 33, 2),
    Sketcher.Constraint("Tangent", 33, 1, 34, 1),
    Sketcher.Constraint("Tangent", 34, 2, 35, 2),
    Sketcher.Constraint("Tangent", 35, 1, 36, 1),
    Sketcher.Constraint("Tangent", 36, 2, 37, 2),
    Sketcher.Constraint("Tangent", 37, 1, 38, 1),
    Sketcher.Constraint("Tangent", 38, 2, 39, 2),
    Sketcher.Constraint("Tangent", 39, 1, 32, 1),
    Sketcher.Constraint("Tangent", 40, 2, 41, 2),
    Sketcher.Constraint("Tangent", 41, 1, 42, 1),
    Sketcher.Constraint("Tangent", 42, 2, 43, 2),
    Sketcher.Constraint("Tangent", 43, 1, 44, 1),
    Sketcher.Constraint("Tangent", 44, 2, 45, 2),
    Sketcher.Constraint("Tangent", 45, 1, 46, 1),
    Sketcher.Constraint("Tangent", 46, 2, 47, 2),
    Sketcher.Constraint("Tangent", 47, 1, 40, 1),
    Sketcher.Constraint("Tangent", 48, 2, 49, 2),
    Sketcher.Constraint("Tangent", 49, 1, 50, 1),
    Sketcher.Constraint("Tangent", 50, 2, 51, 2),
    Sketcher.Constraint("Tangent", 51, 1, 52, 1),
    Sketcher.Constraint("Tangent", 52, 2, 53, 2),
    Sketcher.Constraint("Tangent", 53, 1, 54, 1),
    Sketcher.Constraint("Tangent", 54, 2, 55, 2),
    Sketcher.Constraint("Tangent", 55, 1, 48, 1),
    Sketcher.Constraint("Tangent", 56, 2, 57, 2),
    Sketcher.Constraint("Tangent", 57, 1, 58, 1),
    Sketcher.Constraint("Tangent", 58, 2, 59, 2),
    Sketcher.Constraint("Tangent", 59, 1, 60, 1),
    Sketcher.Constraint("Tangent", 60, 2, 61, 2),
    Sketcher.Constraint("Tangent", 61, 1, 62, 1),
    Sketcher.Constraint("Tangent", 62, 2, 63, 2),
    Sketcher.Constraint("Tangent", 63, 1, 56, 1),
    Sketcher.Constraint("Horizontal", 0),
    Sketcher.Constraint("Vertical", 2),
    Sketcher.Constraint("Horizontal", 4),
    Sketcher.Constraint("Vertical", 6),
    Sketcher.Constraint("Horizontal", 8),
    Sketcher.Constraint("Vertical", 10),
    Sketcher.Constraint("Horizontal", 12),
    Sketcher.Constraint("Vertical", 14),
    Sketcher.Constraint("Horizontal", 16),
    Sketcher.Constraint("Vertical", 18),
    Sketcher.Constraint("Horizontal", 20),
    Sketcher.Constraint("Vertical", 22),
    Sketcher.Constraint("Horizontal", 24),
    Sketcher.Constraint("Vertical", 26),
    Sketcher.Constraint("Horizontal", 28),
    Sketcher.Constraint("Vertical", 30),
    Sketcher.Constraint("Horizontal", 32),
    Sketcher.Constraint("Vertical", 34),
    Sketcher.Constraint("Horizontal", 36),
    Sketcher.Constraint("Vertical", 38),
    Sketcher.Constraint("Horizontal", 40),
    Sketcher.Constraint("Vertical", 42),
    Sketcher.Constraint("Horizontal", 44),
    Sketcher.Constraint("Vertical", 46),
    Sketcher.Constraint("Horizontal", 48),
    Sketcher.Constraint("Vertical", 50),
    Sketcher.Constraint("Horizontal", 52),
    Sketcher.Constraint("Vertical", 54),
    Sketcher.Constraint("Horizontal", 56),
    Sketcher.Constraint("Vertical", 58),
    Sketcher.Constraint("Horizontal", 60),
    Sketcher.Constraint("Vertical", 62),
    Sketcher.Constraint("Equal", 1, 3),
    Sketcher.Constraint("Equal", 3, 5),
    Sketcher.Constraint("Equal", 5, 7),
    Sketcher.Constraint("Equal", 7, 9),
    Sketcher.Constraint("Equal", 9, 11),
    Sketcher.Constraint("Equal", 11, 13),
    Sketcher.Constraint("Equal", 13, 15),
    Sketcher.Constraint("Equal", 15, 17),
    Sketcher.Constraint("Equal", 17, 19),
    Sketcher.Constraint("Equal", 19, 21),
    Sketcher.Constraint("Equal", 21, 23),
    Sketcher.Constraint("Equal", 23, 25),
    Sketcher.Constraint("Equal", 25, 27),
    Sketcher.Constraint("Equal", 27, 29),
    Sketcher.Constraint("Equal", 29, 31),
    Sketcher.Constraint("Equal", 31, 33),
    Sketcher.Constraint("Equal", 33, 35),
    Sketcher.Constraint("Equal", 35, 37),
    Sketcher.Constraint("Equal", 37, 39),
    Sketcher.Constraint("Equal", 39, 41),
    Sketcher.Constraint("Equal", 41, 43),
    Sketcher.Constraint("Equal", 43, 45),
    Sketcher.Constraint("Equal", 45, 47),
    Sketcher.Constraint("Equal", 47, 49),
    Sketcher.Constraint("Equal", 49, 51),
    Sketcher.Constraint("Equal", 51, 53),
    Sketcher.Constraint("Equal", 53, 55),
    Sketcher.Constraint("Equal", 55, 57),
    Sketcher.Constraint("Equal", 57, 59),
    Sketcher.Constraint("Equal", 59, 61),
    Sketcher.Constraint("Equal", 61, 63),
    Sketcher.Constraint("Horizontal", 7, 3, 9, 3),
    Sketcher.Constraint("Horizontal", 5, 3, 11, 3),
    Sketcher.Constraint("Horizontal", 15, 3, 17, 3),
    Sketcher.Constraint("Horizontal", 13, 3, 19, 3),
    Sketcher.Constraint("Horizontal", 23, 3, 25, 3),
    Sketcher.Constraint("Horizontal", 21, 3, 27, 3),
    Sketcher.Constraint("Horizontal", 31, 3, 33, 3),
    Sketcher.Constraint("Horizontal", 29, 3, 35, 3),
    Sketcher.Constraint("Horizontal", 39, 3, 41, 3),
    Sketcher.Constraint("Horizontal", 37, 3, 43, 3),
    Sketcher.Constraint("Horizontal", 47, 3, 49, 3),
    Sketcher.Constraint("Horizontal", 45, 3, 51, 3),
    Sketcher.Constraint("Horizontal", 55, 3, 57, 3),
    Sketcher.Constraint("Horizontal", 53, 3, 59, 3),
    Sketcher.Constraint("Equal", 4, 8),
    Sketcher.Constraint("Equal", 12, 16),
    Sketcher.Constraint("Equal", 20, 24),
    Sketcher.Constraint("Equal", 28, 32),
    Sketcher.Constraint("Equal", 36, 40),
    Sketcher.Constraint("Equal", 44, 48),
    Sketcher.Constraint("Equal", 52, 56),
    Sketcher.Constraint("Equal", 60, 2),
    Sketcher.Constraint("Radius", 1, Q("3 mm")),
    Sketcher.Constraint("DistanceX", 0, 1, 0, 2, Q("4 mm")),
    Sketcher.Constraint("DistanceX", 1, 3, -1, 1, Q("45.200934 mm")),
    Sketcher.Constraint("DistanceY", 1, 3, -1, 1, Q("20.211302 mm")),
    Sketcher.Constraint("DistanceX", 9, 3, -1, 1, Q("64.200934 mm")),
    Sketcher.Constraint("DistanceX", 17, 3, -1, 1, Q("26.200934 mm")),
    Sketcher.Constraint("DistanceX", 25, 3, -1, 1, Q("7.200934 mm")),
    Sketcher.Constraint("DistanceX", -1, 1, 33, 3, Q("11.799066 mm")),
    Sketcher.Constraint("DistanceX", -1, 1, 41, 3, Q("30.799066 mm")),
    Sketcher.Constraint("DistanceX", -1, 1, 49, 3, Q("49.799066 mm")),
    Sketcher.Constraint("DistanceX", -1, 1, 57, 3, Q("68.799066 mm")),
])
sketch3.setExpression("Constraints[149]", "Params.sketch3_radius")
sketch3.setExpression("Constraints[150]", "Params.sketch3_width")
pocket1 = body.newObject("PartDesign::Pocket", "Pocket")
pocket1.Profile = sketch3
pocket1.setExpression("Length", "Params.pocket1_length")
pocket1.Reversed = True

doc.recompute()
